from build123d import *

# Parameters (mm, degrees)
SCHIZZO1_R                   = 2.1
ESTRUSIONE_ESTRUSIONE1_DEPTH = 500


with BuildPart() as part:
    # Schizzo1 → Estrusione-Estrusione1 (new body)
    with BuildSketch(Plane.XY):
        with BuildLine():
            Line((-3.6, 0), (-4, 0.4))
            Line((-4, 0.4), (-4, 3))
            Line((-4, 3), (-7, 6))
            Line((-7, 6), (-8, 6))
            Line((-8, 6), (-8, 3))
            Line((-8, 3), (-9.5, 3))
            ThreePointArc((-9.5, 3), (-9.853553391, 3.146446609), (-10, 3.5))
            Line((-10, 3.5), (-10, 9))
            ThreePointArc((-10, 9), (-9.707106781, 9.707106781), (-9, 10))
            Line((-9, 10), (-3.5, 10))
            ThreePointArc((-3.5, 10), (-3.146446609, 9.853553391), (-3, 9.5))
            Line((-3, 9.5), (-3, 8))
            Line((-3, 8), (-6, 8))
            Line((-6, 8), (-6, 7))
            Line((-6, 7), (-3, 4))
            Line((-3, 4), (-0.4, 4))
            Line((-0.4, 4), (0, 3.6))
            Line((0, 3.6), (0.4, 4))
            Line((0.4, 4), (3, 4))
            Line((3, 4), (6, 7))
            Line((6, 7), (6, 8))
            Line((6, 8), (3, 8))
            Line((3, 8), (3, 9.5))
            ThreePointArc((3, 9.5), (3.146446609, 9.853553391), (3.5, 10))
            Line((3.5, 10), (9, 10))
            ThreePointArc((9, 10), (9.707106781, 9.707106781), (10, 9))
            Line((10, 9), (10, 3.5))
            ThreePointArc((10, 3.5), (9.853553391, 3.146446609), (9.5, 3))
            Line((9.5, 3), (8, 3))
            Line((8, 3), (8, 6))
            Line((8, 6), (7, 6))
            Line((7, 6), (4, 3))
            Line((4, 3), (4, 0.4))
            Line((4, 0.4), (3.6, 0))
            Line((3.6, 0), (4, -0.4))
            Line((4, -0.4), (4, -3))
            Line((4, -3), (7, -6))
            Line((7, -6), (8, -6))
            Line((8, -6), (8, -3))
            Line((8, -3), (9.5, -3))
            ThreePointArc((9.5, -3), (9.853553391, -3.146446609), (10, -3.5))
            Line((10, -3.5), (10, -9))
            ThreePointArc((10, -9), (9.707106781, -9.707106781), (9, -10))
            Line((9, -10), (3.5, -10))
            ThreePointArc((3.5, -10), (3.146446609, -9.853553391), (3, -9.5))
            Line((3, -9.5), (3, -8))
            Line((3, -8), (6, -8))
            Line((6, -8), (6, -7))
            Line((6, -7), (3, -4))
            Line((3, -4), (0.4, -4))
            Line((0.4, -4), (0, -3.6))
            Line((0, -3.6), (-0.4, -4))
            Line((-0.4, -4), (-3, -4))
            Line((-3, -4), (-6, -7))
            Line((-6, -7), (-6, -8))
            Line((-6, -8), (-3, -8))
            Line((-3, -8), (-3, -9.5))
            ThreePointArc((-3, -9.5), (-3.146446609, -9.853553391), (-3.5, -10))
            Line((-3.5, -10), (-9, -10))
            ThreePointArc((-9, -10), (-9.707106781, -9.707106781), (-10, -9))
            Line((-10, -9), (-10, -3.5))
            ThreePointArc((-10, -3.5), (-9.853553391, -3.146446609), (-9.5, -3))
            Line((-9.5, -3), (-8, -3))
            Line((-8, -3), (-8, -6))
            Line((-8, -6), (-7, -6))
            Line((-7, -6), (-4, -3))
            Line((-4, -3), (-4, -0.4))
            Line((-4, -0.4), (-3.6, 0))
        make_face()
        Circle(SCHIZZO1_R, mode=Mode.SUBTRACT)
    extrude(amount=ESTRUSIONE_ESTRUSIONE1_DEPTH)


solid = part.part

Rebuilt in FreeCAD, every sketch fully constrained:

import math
import FreeCAD as App
import Part
import Sketcher
from FreeCAD import Vector

doc = App.newDocument("Part")
body = doc.addObject("PartDesign::Body", "Body")

# Sketch on XY plane
sketch1 = body.newObject("Sketcher::SketchObject", "Sketch")
sketch1.AttachmentSupport = (doc.getObject("XY_Plane"), [""])
sketch1.MapMode = "FlatFace"
sketch1.addGeometry([
    Part.LineSegment(Vector(-4, 0.4, 0), Vector(-3.6, 0, 0)),  # 0
    Part.LineSegment(Vector(-3.6, 0, 0), Vector(-4, -0.4, 0)),  # 1
    Part.LineSegment(Vector(-4, -0.4, 0), Vector(-4, -3, 0)),  # 2
    Part.LineSegment(Vector(-4, -3, 0), Vector(-7, -6, 0)),  # 3
    Part.LineSegment(Vector(-7, -6, 0), Vector(-8, -6, 0)),  # 4
    Part.LineSegment(Vector(-8, -6, 0), Vector(-8, -3, 0)),  # 5
    Part.LineSegment(Vector(-8, -3, 0), Vector(-9.5, -3, 0)),  # 6
    Part.ArcOfCircle(Part.Circle(Vector(-9.5, -3.5, 0), Vector(0, 0, 1), 0.5), math.radians(90), math.radians(180)),  # 7
    Part.LineSegment(Vector(-10, -3.5, 0), Vector(-10, -9, 0)),  # 8
    Part.ArcOfCircle(Part.Circle(Vector(-9, -9, 0), Vector(0, 0, 1), 1), math.radians(-180), math.radians(-90)),  # 9
    Part.LineSegment(Vector(-9, -10, 0), Vector(-3.5, -10, 0)),  # 10
    Part.ArcOfCircle(Part.Circle(Vector(-3.5, -9.5, 0), Vector(0, 0, 1), 0.5), math.radians(-90), math.radians(0)),  # 11
    Part.LineSegment(Vector(-3, -9.5, 0), Vector(-3, -8, 0)),  # 12
    Part.LineSegment(Vector(-3, -8, 0), Vector(-6, -8, 0)),  # 13
    Part.LineSegment(Vector(-6, -8, 0), Vector(-6, -7, 0)),  # 14
    Part.LineSegment(Vector(-6, -7, 0), Vector(-3, -4, 0)),  # 15
    Part.LineSegment(Vector(-3, -4, 0), Vector(-0.4, -4, 0)),  # 16
    Part.LineSegment(Vector(-0.4, -4, 0), Vector(0, -3.6, 0)),  # 17
    Part.LineSegment(Vector(0, -3.6, 0), Vector(0.4, -4, 0)),  # 18
    Part.LineSegment(Vector(0.4, -4, 0), Vector(3, -4, 0)),  # 19
    Part.LineSegment(Vector(3, -4, 0), Vector(6, -7, 0)),  # 20
    Part.LineSegment(Vector(6, -7, 0), Vector(6, -8, 0)),  # 21
    Part.LineSegment(Vector(6, -8, 0), Vector(3, -8, 0)),  # 22
    Part.LineSegment(Vector(3, -8, 0), Vector(3, -9.5, 0)),  # 23
    Part.ArcOfCircle(Part.Circle(Vector(3.5, -9.5, 0), Vector(0, 0, 1), 0.5), math.radians(180), math.radians(270)),  # 24
    Part.LineSegment(Vector(3.5, -10, 0), Vector(9, -10, 0)),  # 25
    Part.ArcOfCircle(Part.Circle(Vector(9, -9, 0), Vector(0, 0, 1), 1), math.radians(-90), math.radians(0)),  # 26
    Part.LineSegment(Vector(10, -9, 0), Vector(10, -3.5, 0)),  # 27
    Part.ArcOfCircle(Part.Circle(Vector(9.5, -3.5, 0), Vector(0, 0, 1), 0.5), math.radians(0), math.radians(90)),  # 28
    Part.LineSegment(Vector(9.5, -3, 0), Vector(8, -3, 0)),  # 29
    Part.LineSegment(Vector(8, -3, 0), Vector(8, -6, 0)),  # 30
    Part.LineSegment(Vector(8, -6, 0), Vector(7, -6, 0)),  # 31
    Part.LineSegment(Vector(7, -6, 0), Vector(4, -3, 0)),  # 32
    Part.LineSegment(Vector(4, -3, 0), Vector(4, -0.4, 0)),  # 33
    Part.LineSegment(Vector(4, -0.4, 0), Vector(3.6, 0, 0)),  # 34
    Part.LineSegment(Vector(3.6, 0, 0), Vector(4, 0.4, 0)),  # 35
    Part.LineSegment(Vector(4, 0.4, 0), Vector(4, 3, 0)),  # 36
    Part.LineSegment(Vector(4, 3, 0), Vector(7, 6, 0)),  # 37
    Part.LineSegment(Vector(7, 6, 0), Vector(8, 6, 0)),  # 38
    Part.LineSegment(Vector(8, 6, 0), Vector(8, 3, 0)),  # 39
    Part.LineSegment(Vector(8, 3, 0), Vector(9.5, 3, 0)),  # 40
    Part.ArcOfCircle(Part.Circle(Vector(9.5, 3.5, 0), Vector(0, 0, 1), 0.5), math.radians(-90), math.radians(0)),  # 41
    Part.LineSegment(Vector(10, 3.5, 0), Vector(10, 9, 0)),  # 42
    Part.ArcOfCircle(Part.Circle(Vector(9, 9, 0), Vector(0, 0, 1), 1), math.radians(0), math.radians(90)),  # 43
    Part.LineSegment(Vector(9, 10, 0), Vector(3.5, 10, 0)),  # 44
    Part.ArcOfCircle(Part.Circle(Vector(3.5, 9.5, 0), Vector(0, 0, 1), 0.5), math.radians(90), math.radians(180)),  # 45
    Part.LineSegment(Vector(3, 9.5, 0), Vector(3, 8, 0)),  # 46
    Part.LineSegment(Vector(3, 8, 0), Vector(6, 8, 0)),  # 47
    Part.LineSegment(Vector(6, 8, 0), Vector(6, 7, 0)),  # 48
    Part.LineSegment(Vector(6, 7, 0), Vector(3, 4, 0)),  # 49
    Part.LineSegment(Vector(3, 4, 0), Vector(0.4, 4, 0)),  # 50
    Part.LineSegment(Vector(0.4, 4, 0), Vector(0, 3.6, 0)),  # 51
    Part.LineSegment(Vector(0, 3.6, 0), Vector(-0.4, 4, 0)),  # 52
    Part.LineSegment(Vector(-0.4, 4, 0), Vector(-3, 4, 0)),  # 53
    Part.LineSegment(Vector(-3, 4, 0), Vector(-6, 7, 0)),  # 54
    Part.LineSegment(Vector(-6, 7, 0), Vector(-6, 8, 0)),  # 55
    Part.LineSegment(Vector(-6, 8, 0), Vector(-3, 8, 0)),  # 56
    Part.LineSegment(Vector(-3, 8, 0), Vector(-3, 9.5, 0)),  # 57
    Part.ArcOfCircle(Part.Circle(Vector(-3.5, 9.5, 0), Vector(0, 0, 1), 0.5), math.radians(0), math.radians(90)),  # 58
    Part.LineSegment(Vector(-3.5, 10, 0), Vector(-9, 10, 0)),  # 59
    Part.ArcOfCircle(Part.Circle(Vector(-9, 9, 0), Vector(0, 0, 1), 1), math.radians(90), math.radians(180)),  # 60
    Part.LineSegment(Vector(-10, 9, 0), Vector(-10, 3.5, 0)),  # 61
    Part.ArcOfCircle(Part.Circle(Vector(-9.5, 3.5, 0), Vector(0, 0, 1), 0.5), math.radians(180), math.radians(270)),  # 62
    Part.LineSegment(Vector(-9.5, 3, 0), Vector(-8, 3, 0)),  # 63
    Part.LineSegment(Vector(-8, 3, 0), Vector(-8, 6, 0)),  # 64
    Part.LineSegment(Vector(-8, 6, 0), Vector(-7, 6, 0)),  # 65
    Part.LineSegment(Vector(-7, 6, 0), Vector(-4, 3, 0)),  # 66
    Part.LineSegment(Vector(-4, 3, 0), Vector(-4, 0.4, 0)),  # 67
    Part.Circle(Vector(0, 0, 0), Vector(0, 0, 1), 2.1),  # 68
], False)
sketch1.addConstraint([
    Sketcher.Constraint("Coincident", 0, 2, 1, 1),
    Sketcher.Constraint("Coincident", 1, 2, 2, 1),
    Sketcher.Constraint("Coincident", 2, 2, 3, 1),
    Sketcher.Constraint("Coincident", 3, 2, 4, 1),
    Sketcher.Constraint("Coincident", 4, 2, 5, 1),
    Sketcher.Constraint("Coincident", 5, 2, 6, 1),
    Sketcher.Constraint("Tangent", 6, 2, 7, 1),
    Sketcher.Constraint("Tangent", 7, 2, 8, 1),
    Sketcher.Constraint("Tangent", 8, 2, 9, 1),
    Sketcher.Constraint("Tangent", 9, 2, 10, 1),
    Sketcher.Constraint("Tangent", 10, 2, 11, 1),
    Sketcher.Constraint("Tangent", 11, 2, 12, 1),
    Sketcher.Constraint("Coincident", 12, 2, 13, 1),
    Sketcher.Constraint("Coincident", 13, 2, 14, 1),
    Sketcher.Constraint("Coincident", 14, 2, 15, 1),
    Sketcher.Constraint("Coincident", 15, 2, 16, 1),
    Sketcher.Constraint("Coincident", 16, 2, 17, 1),
    Sketcher.Constraint("Coincident", 17, 2, 18, 1),
    Sketcher.Constraint("Coincident", 18, 2, 19, 1),
    Sketcher.Constraint("Coincident", 19, 2, 20, 1),
    Sketcher.Constraint("Coincident", 20, 2, 21, 1),
    Sketcher.Constraint("Coincident", 21, 2, 22, 1),
    Sketcher.Constraint("Coincident", 22, 2, 23, 1),
    Sketcher.Constraint("Tangent", 23, 2, 24, 1),
    Sketcher.Constraint("Tangent", 24, 2, 25, 1),
    Sketcher.Constraint("Tangent", 25, 2, 26, 1),
    Sketcher.Constraint("Tangent", 26, 2, 27, 1),
    Sketcher.Constraint("Tangent", 27, 2, 28, 1),
    Sketcher.Constraint("Tangent", 28, 2, 29, 1),
    Sketcher.Constraint("Coincident", 29, 2, 30, 1),
    Sketcher.Constraint("Coincident", 30, 2, 31, 1),
    Sketcher.Constraint("Coincident", 31, 2, 32, 1),
    Sketcher.Constraint("Coincident", 32, 2, 33, 1),
    Sketcher.Constraint("Coincident", 33, 2, 34, 1),
    Sketcher.Constraint("Coincident", 34, 2, 35, 1),
    Sketcher.Constraint("Coincident", 35, 2, 36, 1),
    Sketcher.Constraint("Coincident", 36, 2, 37, 1),
    Sketcher.Constraint("Coincident", 37, 2, 38, 1),
    Sketcher.Constraint("Coincident", 38, 2, 39, 1),
    Sketcher.Constraint("Coincident", 39, 2, 40, 1),
    Sketcher.Constraint("Tangent", 40, 2, 41, 1),
    Sketcher.Constraint("Tangent", 41, 2, 42, 1),
    Sketcher.Constraint("Tangent", 42, 2, 43, 1),
    Sketcher.Constraint("Tangent", 43, 2, 44, 1),
    Sketcher.Constraint("Tangent", 44, 2, 45, 1),
    Sketcher.Constraint("Tangent", 45, 2, 46, 1),
    Sketcher.Constraint("Coincident", 46, 2, 47, 1),
    Sketcher.Constraint("Coincident", 47, 2, 48, 1),
    Sketcher.Constraint("Coincident", 48, 2, 49, 1),
    Sketcher.Constraint("Coincident", 49, 2, 50, 1),
    Sketcher.Constraint("Coincident", 50, 2, 51, 1),
    Sketcher.Constraint("Coincident", 51, 2, 52, 1),
    Sketcher.Constraint("Coincident", 52, 2, 53, 1),
    Sketcher.Constraint("Coincident", 53, 2, 54, 1),
    Sketcher.Constraint("Coincident", 54, 2, 55, 1),
    Sketcher.Constraint("Coincident", 55, 2, 56, 1),
    Sketcher.Constraint("Coincident", 56, 2, 57, 1),
    Sketcher.Constraint("Tangent", 57, 2, 58, 1),
    Sketcher.Constraint("Tangent", 58, 2, 59, 1),
    Sketcher.Constraint("Tangent", 59, 2, 60, 1),
    Sketcher.Constraint("Tangent", 60, 2, 61, 1),
    Sketcher.Constraint("Tangent", 61, 2, 62, 1),
    Sketcher.Constraint("Tangent", 62, 2, 63, 1),
    Sketcher.Constraint("Coincident", 63, 2, 64, 1),
    Sketcher.Constraint("Coincident", 64, 2, 65, 1),
    Sketcher.Constraint("Coincident", 65, 2, 66, 1),
    Sketcher.Constraint("Coincident", 66, 2, 67, 1),
    Sketcher.Constraint("Coincident", 67, 2, 0, 1),
    Sketcher.Constraint("Vertical", 2),
    Sketcher.Constraint("Horizontal", 4),
    Sketcher.Constraint("Vertical", 5),
    Sketcher.Constraint("Horizontal", 6),
    Sketcher.Constraint("Vertical", 8),
    Sketcher.Constraint("Horizontal", 10),
    Sketcher.Constraint("Vertical", 12),
    Sketcher.Constraint("Horizontal", 13),
    Sketcher.Constraint("Vertical", 14),
    Sketcher.Constraint("Horizontal", 16),
    Sketcher.Constraint("Horizontal", 19),
    Sketcher.Constraint("Vertical", 21),
    Sketcher.Constraint("Horizontal", 22),
    Sketcher.Constraint("Vertical", 23),
    Sketcher.Constraint("Horizontal", 25),
    Sketcher.Constraint("Vertical", 27),
    Sketcher.Constraint("Horizontal", 29),
    Sketcher.Constraint("Vertical", 30),
    Sketcher.Constraint("Horizontal", 31),
    Sketcher.Constraint("Vertical", 33),
    Sketcher.Constraint("Vertical", 36),
    Sketcher.Constraint("Horizontal", 38),
    Sketcher.Constraint("Vertical", 39),
    Sketcher.Constraint("Horizontal", 40),
    Sketcher.Constraint("Vertical", 42),
    Sketcher.Constraint("Horizontal", 44),
    Sketcher.Constraint("Vertical", 46),
    Sketcher.Constraint("Horizontal", 47),
    Sketcher.Constraint("Vertical", 48),
    Sketcher.Constraint("Horizontal", 50),
    Sketcher.Constraint("Horizontal", 53),
    Sketcher.Constraint("Vertical", 55),
    Sketcher.Constraint("Horizontal", 56),
    Sketcher.Constraint("Vertical", 57),
    Sketcher.Constraint("Horizontal", 59),
    Sketcher.Constraint("Vertical", 61),
    Sketcher.Constraint("Horizontal", 63),
    Sketcher.Constraint("Vertical", 64),
    Sketcher.Constraint("Horizontal", 65),
    Sketcher.Constraint("Vertical", 67),
    Sketcher.Constraint("Coincident", 68, 3, -1, 1),
    Sketcher.Constraint("Equal", 7, 11),
    Sketcher.Constraint("Equal", 11, 24),
    Sketcher.Constraint("Equal", 9, 26),
    Sketcher.Constraint("Equal", 24, 28),
    Sketcher.Constraint("Equal", 28, 41),
    Sketcher.Constraint("Equal", 26, 43),
    Sketcher.Constraint("Equal", 41, 45),
    Sketcher.Constraint("Equal", 45, 58),
    Sketcher.Constraint("Equal", 43, 60),
    Sketcher.Constraint("Equal", 58, 62),
    Sketcher.Constraint("Symmetric", 7, 3, 41, 3, -1, 1),
    Sketcher.Constraint("Symmetric", 11, 3, 45, 3, -1, 1),
    Sketcher.Constraint("Symmetric", 24, 3, 58, 3, -1, 1),
    Sketcher.Constraint("Symmetric", 28, 3, 62, 3, -1, 1),
    Sketcher.Constraint("Symmetric", 0, 2, 34, 2, -1, 1),
    Sketcher.Constraint("Symmetric", 1, 2, 35, 2, -1, 1),
    Sketcher.Constraint("Symmetric", 3, 2, 37, 2, -1, 1),
    Sketcher.Constraint("Symmetric", 13, 2, 47, 2, -1, 1),
    Sketcher.Constraint("Symmetric", 15, 2, 49, 2, -1, 1),
    Sketcher.Constraint("Symmetric", 17, 2, 51, 2, -1, 1),
    Sketcher.Constraint("Symmetric", 18, 2, 52, 2, -1, 1),
    Sketcher.Constraint("Symmetric", 20, 2, 54, 2, -1, 1),
    Sketcher.Constraint("Symmetric", 30, 2, 64, 2, -1, 1),
    Sketcher.Constraint("Symmetric", 32, 2, 66, 2, -1, 1),
    Sketcher.Constraint("Symmetric", 11, 3, 24, 3, -2),
    Sketcher.Constraint("Symmetric", 7, 3, 28, 3, -2),
    Sketcher.Constraint("Symmetric", 16, 2, 18, 2, -2),
    Sketcher.Constraint("Symmetric", 14, 2, 20, 2, -2),
    Sketcher.Constraint("Symmetric", 4, 2, 30, 2, -2),
    Sketcher.Constraint("Symmetric", 2, 2, 32, 2, -2),
    Sketcher.Constraint("PointOnObject", 0, 2, -1),
    Sketcher.Constraint("PointOnObject", 17, 2, -2),
    Sketcher.Constraint("Perpendicular", 0, 1),
    Sketcher.Constraint("Parallel", 1, 3),
    Sketcher.Constraint("Parallel", 3, 15),
    Sketcher.Constraint("Parallel", 15, 17),
    Sketcher.Constraint("Perpendicular", 17, 18),
    Sketcher.Constraint("Parallel", 18, 20),
    Sketcher.Constraint("Parallel", 20, 32),
    Sketcher.Constraint("Parallel", 32, 34),
    Sketcher.Constraint("Parallel", 35, 37),
    Sketcher.Constraint("Parallel", 37, 49),
    Sketcher.Constraint("Parallel", 49, 51),
    Sketcher.Constraint("Parallel", 52, 54),
    Sketcher.Constraint("Parallel", 54, 66),
    Sketcher.Constraint("Horizontal", 2, 2, 5, 2),
    Sketcher.Constraint("Horizontal", 13, 2, 21, 2),
    Sketcher.Constraint("Horizontal", 47, 2, 55, 2),
    Sketcher.Constraint("Vertical", 12, 2, 15, 2),
    Sketcher.Constraint("Vertical", 30, 2, 38, 2),
    Sketcher.Constraint("Equal", 53, 2),
    Sketcher.Constraint("Equal", 56, 5),
    Sketcher.Constraint("Equal", 59, 8),
    Sketcher.Constraint("Equal", 63, 12),
    Sketcher.Constraint("Equal", 65, 14),
    Sketcher.Constraint("Equal", 1, 17),
    Sketcher.Constraint("Radius", 9, 1.0),
    Sketcher.Constraint("Diameter", 68, 4.2),
    Sketcher.Constraint("Radius", 7, 0.5),
    Sketcher.Constraint("DistanceX", 4, 2, 4, 1, 1.0),
    Sketcher.Constraint("DistanceX", 13, 2, 13, 1, 3.0),
    Sketcher.Constraint("DistanceX", 6, 2, 6, 1, 1.5),
    Sketcher.Constraint("DistanceX", 10, 1, 10, 2, 5.5),
    Sketcher.Constraint("DistanceX", 16, 1, 16, 2, 2.6),
    Sketcher.Constraint("DistanceX", 9, 3, -1, 1, 9.0),
])
pad1 = body.newObject("PartDesign::Pad", "Pad")
pad1.Profile = sketch1
pad1.Length = 500

doc.recompute()
